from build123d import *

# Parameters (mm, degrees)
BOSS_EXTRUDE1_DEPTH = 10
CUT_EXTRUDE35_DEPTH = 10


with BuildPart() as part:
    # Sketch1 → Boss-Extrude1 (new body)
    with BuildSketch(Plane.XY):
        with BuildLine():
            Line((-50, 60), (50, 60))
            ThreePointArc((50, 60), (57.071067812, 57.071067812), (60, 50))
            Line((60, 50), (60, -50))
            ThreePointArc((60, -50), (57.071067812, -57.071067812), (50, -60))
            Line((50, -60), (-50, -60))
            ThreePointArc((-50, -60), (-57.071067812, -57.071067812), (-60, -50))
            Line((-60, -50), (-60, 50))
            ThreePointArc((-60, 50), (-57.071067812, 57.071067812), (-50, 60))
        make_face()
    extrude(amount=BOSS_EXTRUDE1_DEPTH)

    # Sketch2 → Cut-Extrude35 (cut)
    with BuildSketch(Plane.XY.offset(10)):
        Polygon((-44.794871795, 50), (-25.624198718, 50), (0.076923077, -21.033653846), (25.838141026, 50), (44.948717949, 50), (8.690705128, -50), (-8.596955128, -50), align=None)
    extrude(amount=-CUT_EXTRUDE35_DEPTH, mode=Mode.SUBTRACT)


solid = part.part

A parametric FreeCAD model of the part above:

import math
import FreeCAD as App
import Part
import Sketcher
Q = App.Units.Quantity


def add_polygon(sketch, points):
    """Adds a closed chain of lines whose ends are joined by coincident constraints."""
    first, n = sketch.GeometryCount, len(points)
    for a, b in zip(points, points[1:] + points[:1]):
        sketch.addGeometry(Part.LineSegment(App.Vector(*a, 0), App.Vector(*b, 0)), False)
    for i in range(n):
        sketch.addConstraint(Sketcher.Constraint("Coincident", first + i, 2, first + (i + 1) % n, 1))

doc = App.newDocument("Part")
params = doc.addObject("Spreadsheet::Sheet", "Params")
for row, (alias, value) in enumerate([
    ("sketch1_radius", "10 mm"),
    ("sketch1_width", "100 mm"),
    ("pad1_length", "10 mm"),
    ("pocket1_length", "10 mm"),
], start=1):
    params.set(f"A{row}", alias)
    params.set(f"B{row}", "=" + value)
    params.setAlias(f"B{row}", alias)

body = doc.addObject("PartDesign::Body", "Body")

# Sketch on XY plane
sketch1 = body.newObject("Sketcher::SketchObject", "Sketch")
sketch1.AttachmentSupport = (doc.getObject("XY_Plane"), [""])
sketch1.MapMode = "FlatFace"
sketch1.addGeometry(Part.LineSegment(App.Vector(50, 60, 0), App.Vector(-50, 60, 0)), False)
sketch1.addGeometry(Part.ArcOfCircle(Part.Circle(App.Vector(-50, 50, 0), App.Vector(0, 0, 1), 10), math.radians(90), math.radians(180)), False)
sketch1.addGeometry(Part.LineSegment(App.Vector(-60, 50, 0), App.Vector(-60, -50, 0)), False)
sketch1.addGeometry(Part.ArcOfCircle(Part.Circle(App.Vector(-50, -50, 0), App.Vector(0, 0, 1), 10), math.radians(180), math.radians(270)), False)
sketch1.addGeometry(Part.LineSegment(App.Vector(-50, -60, 0), App.Vector(50, -60, 0)), False)
sketch1.addGeometry(Part.ArcOfCircle(Part.Circle(App.Vector(50, -50, 0), App.Vector(0, 0, 1), 10), math.radians(-90), math.radians(0)), False)
sketch1.addGeometry(Part.LineSegment(App.Vector(60, -50, 0), App.Vector(60, 50, 0)), False)
sketch1.addGeometry(Part.ArcOfCircle(Part.Circle(App.Vector(50, 50, 0), App.Vector(0, 0, 1), 10), math.radians(0), math.radians(90)), False)
sketch1.addConstraint(Sketcher.Constraint("Tangent", 0, 2, 1, 1))
sketch1.addConstraint(Sketcher.Constraint("Tangent", 1, 2, 2, 1))
sketch1.addConstraint(Sketcher.Constraint("Tangent", 2, 2, 3, 1))
sketch1.addConstraint(Sketcher.Constraint("Tangent", 3, 2, 4, 1))
sketch1.addConstraint(Sketcher.Constraint("Tangent", 4, 2, 5, 1))
sketch1.addConstraint(Sketcher.Constraint("Tangent", 5, 2, 6, 1))
sketch1.addConstraint(Sketcher.Constraint("Tangent", 6, 2, 7, 1))
sketch1.addConstraint(Sketcher.Constraint("Tangent", 7, 2, 0, 1))
sketch1.addConstraint(Sketcher.Constraint("Horizontal", 0))
sketch1.addConstraint(Sketcher.Constraint("Vertical", 2))
sketch1.addConstraint(Sketcher.Constraint("Horizontal", 4))
sketch1.addConstraint(Sketcher.Constraint("Vertical", 6))
sketch1.addConstraint(Sketcher.Constraint("Equal", 1, 3))
sketch1.addConstraint(Sketcher.Constraint("Equal", 3, 5))
sketch1.addConstraint(Sketcher.Constraint("Equal", 5, 7))
sketch1.addConstraint(Sketcher.Constraint("Symmetric", 1, 3, 5, 3, -1, 1))
sketch1.addConstraint(Sketcher.Constraint("Equal", 4, 2))
sketch1.addConstraint(Sketcher.Constraint("Radius", 1, Q("10 mm")))
sketch1.addConstraint(Sketcher.Constraint("DistanceX", 0, 2, 0, 1, Q("100 mm")))
sketch1.setExpression("Constraints[17]", "Params.sketch1_radius")
sketch1.setExpression("Constraints[18]", "Params.sketch1_width")
pad1 = body.newObject("PartDesign::Pad", "Pad")
pad1.Profile = sketch1
pad1.setExpression("Length", "Params.pad1_length")

# Sketch on XY plane
sketch2 = body.newObject("Sketcher::SketchObject", "Sketch001")
sketch2.AttachmentSupport = (doc.getObject("XY_Plane"), [""])
sketch2.MapMode = "FlatFace"
sketch2.AttachmentOffset = App.Placement(App.Vector(0, 0, 10), App.Rotation())
add_polygon(sketch2, [(-25.624199, 50), (-44.794872, 50), (-8.596955, -50), (8.690705, -50), (44.948718, 50), (25.838141, 50), (0.076923, -21.033654)])  # lines 0-6
sketch2.addConstraint(Sketcher.Constraint("Horizontal", 0))
sketch2.addConstraint(Sketcher.Constraint("Horizontal", 2))
sketch2.addConstraint(Sketcher.Constraint("Horizontal", 4))
sketch2.addConstraint(Sketcher.Constraint("Horizontal", 0, 2, 3, 2))
sketch2.addConstraint(Sketcher.Constraint("DistanceY", -1, 1, 0, 2, Q("50 mm")))
sketch2.addConstraint(Sketcher.Constraint("DistanceY", 1, 2, -1, 1, Q("50 mm")))
sketch2.addConstraint(Sketcher.Constraint("DistanceX", 2, 1, 2, 2, Q("17.28766 mm")))
sketch2.addConstraint(Sketcher.Constraint("DistanceX", 6, 2, -1, 1, Q("25.624199 mm")))
sketch2.addConstraint(Sketcher.Constraint("Distance", 6, Q("75.540239 mm")))
sketch2.addConstraint(Sketcher.Constraint("DistanceX", 0, 2, 0, 1, Q("19.170673 mm")))
sketch2.addConstraint(Sketcher.Constraint("DistanceX", 4, 2, 4, 1, Q("19.110577 mm")))
sketch2.addConstraint(Sketcher.Constraint("DistanceX", -1, 1, 4, 2, Q("25.838141 mm")))
sketch2.addConstraint(Sketcher.Constraint("DistanceX", 1, 2, 5, 2, Q("8.673878 mm")))
sketch2.addConstraint(Sketcher.Constraint("DistanceX", 6, 2, 5, 2, Q("25.701122 mm")))
pocket1 = body.newObject("PartDesign::Pocket", "Pocket")
pocket1.Profile = sketch2
pocket1.setExpression("Length", "Params.pocket1_length")

doc.recompute()
